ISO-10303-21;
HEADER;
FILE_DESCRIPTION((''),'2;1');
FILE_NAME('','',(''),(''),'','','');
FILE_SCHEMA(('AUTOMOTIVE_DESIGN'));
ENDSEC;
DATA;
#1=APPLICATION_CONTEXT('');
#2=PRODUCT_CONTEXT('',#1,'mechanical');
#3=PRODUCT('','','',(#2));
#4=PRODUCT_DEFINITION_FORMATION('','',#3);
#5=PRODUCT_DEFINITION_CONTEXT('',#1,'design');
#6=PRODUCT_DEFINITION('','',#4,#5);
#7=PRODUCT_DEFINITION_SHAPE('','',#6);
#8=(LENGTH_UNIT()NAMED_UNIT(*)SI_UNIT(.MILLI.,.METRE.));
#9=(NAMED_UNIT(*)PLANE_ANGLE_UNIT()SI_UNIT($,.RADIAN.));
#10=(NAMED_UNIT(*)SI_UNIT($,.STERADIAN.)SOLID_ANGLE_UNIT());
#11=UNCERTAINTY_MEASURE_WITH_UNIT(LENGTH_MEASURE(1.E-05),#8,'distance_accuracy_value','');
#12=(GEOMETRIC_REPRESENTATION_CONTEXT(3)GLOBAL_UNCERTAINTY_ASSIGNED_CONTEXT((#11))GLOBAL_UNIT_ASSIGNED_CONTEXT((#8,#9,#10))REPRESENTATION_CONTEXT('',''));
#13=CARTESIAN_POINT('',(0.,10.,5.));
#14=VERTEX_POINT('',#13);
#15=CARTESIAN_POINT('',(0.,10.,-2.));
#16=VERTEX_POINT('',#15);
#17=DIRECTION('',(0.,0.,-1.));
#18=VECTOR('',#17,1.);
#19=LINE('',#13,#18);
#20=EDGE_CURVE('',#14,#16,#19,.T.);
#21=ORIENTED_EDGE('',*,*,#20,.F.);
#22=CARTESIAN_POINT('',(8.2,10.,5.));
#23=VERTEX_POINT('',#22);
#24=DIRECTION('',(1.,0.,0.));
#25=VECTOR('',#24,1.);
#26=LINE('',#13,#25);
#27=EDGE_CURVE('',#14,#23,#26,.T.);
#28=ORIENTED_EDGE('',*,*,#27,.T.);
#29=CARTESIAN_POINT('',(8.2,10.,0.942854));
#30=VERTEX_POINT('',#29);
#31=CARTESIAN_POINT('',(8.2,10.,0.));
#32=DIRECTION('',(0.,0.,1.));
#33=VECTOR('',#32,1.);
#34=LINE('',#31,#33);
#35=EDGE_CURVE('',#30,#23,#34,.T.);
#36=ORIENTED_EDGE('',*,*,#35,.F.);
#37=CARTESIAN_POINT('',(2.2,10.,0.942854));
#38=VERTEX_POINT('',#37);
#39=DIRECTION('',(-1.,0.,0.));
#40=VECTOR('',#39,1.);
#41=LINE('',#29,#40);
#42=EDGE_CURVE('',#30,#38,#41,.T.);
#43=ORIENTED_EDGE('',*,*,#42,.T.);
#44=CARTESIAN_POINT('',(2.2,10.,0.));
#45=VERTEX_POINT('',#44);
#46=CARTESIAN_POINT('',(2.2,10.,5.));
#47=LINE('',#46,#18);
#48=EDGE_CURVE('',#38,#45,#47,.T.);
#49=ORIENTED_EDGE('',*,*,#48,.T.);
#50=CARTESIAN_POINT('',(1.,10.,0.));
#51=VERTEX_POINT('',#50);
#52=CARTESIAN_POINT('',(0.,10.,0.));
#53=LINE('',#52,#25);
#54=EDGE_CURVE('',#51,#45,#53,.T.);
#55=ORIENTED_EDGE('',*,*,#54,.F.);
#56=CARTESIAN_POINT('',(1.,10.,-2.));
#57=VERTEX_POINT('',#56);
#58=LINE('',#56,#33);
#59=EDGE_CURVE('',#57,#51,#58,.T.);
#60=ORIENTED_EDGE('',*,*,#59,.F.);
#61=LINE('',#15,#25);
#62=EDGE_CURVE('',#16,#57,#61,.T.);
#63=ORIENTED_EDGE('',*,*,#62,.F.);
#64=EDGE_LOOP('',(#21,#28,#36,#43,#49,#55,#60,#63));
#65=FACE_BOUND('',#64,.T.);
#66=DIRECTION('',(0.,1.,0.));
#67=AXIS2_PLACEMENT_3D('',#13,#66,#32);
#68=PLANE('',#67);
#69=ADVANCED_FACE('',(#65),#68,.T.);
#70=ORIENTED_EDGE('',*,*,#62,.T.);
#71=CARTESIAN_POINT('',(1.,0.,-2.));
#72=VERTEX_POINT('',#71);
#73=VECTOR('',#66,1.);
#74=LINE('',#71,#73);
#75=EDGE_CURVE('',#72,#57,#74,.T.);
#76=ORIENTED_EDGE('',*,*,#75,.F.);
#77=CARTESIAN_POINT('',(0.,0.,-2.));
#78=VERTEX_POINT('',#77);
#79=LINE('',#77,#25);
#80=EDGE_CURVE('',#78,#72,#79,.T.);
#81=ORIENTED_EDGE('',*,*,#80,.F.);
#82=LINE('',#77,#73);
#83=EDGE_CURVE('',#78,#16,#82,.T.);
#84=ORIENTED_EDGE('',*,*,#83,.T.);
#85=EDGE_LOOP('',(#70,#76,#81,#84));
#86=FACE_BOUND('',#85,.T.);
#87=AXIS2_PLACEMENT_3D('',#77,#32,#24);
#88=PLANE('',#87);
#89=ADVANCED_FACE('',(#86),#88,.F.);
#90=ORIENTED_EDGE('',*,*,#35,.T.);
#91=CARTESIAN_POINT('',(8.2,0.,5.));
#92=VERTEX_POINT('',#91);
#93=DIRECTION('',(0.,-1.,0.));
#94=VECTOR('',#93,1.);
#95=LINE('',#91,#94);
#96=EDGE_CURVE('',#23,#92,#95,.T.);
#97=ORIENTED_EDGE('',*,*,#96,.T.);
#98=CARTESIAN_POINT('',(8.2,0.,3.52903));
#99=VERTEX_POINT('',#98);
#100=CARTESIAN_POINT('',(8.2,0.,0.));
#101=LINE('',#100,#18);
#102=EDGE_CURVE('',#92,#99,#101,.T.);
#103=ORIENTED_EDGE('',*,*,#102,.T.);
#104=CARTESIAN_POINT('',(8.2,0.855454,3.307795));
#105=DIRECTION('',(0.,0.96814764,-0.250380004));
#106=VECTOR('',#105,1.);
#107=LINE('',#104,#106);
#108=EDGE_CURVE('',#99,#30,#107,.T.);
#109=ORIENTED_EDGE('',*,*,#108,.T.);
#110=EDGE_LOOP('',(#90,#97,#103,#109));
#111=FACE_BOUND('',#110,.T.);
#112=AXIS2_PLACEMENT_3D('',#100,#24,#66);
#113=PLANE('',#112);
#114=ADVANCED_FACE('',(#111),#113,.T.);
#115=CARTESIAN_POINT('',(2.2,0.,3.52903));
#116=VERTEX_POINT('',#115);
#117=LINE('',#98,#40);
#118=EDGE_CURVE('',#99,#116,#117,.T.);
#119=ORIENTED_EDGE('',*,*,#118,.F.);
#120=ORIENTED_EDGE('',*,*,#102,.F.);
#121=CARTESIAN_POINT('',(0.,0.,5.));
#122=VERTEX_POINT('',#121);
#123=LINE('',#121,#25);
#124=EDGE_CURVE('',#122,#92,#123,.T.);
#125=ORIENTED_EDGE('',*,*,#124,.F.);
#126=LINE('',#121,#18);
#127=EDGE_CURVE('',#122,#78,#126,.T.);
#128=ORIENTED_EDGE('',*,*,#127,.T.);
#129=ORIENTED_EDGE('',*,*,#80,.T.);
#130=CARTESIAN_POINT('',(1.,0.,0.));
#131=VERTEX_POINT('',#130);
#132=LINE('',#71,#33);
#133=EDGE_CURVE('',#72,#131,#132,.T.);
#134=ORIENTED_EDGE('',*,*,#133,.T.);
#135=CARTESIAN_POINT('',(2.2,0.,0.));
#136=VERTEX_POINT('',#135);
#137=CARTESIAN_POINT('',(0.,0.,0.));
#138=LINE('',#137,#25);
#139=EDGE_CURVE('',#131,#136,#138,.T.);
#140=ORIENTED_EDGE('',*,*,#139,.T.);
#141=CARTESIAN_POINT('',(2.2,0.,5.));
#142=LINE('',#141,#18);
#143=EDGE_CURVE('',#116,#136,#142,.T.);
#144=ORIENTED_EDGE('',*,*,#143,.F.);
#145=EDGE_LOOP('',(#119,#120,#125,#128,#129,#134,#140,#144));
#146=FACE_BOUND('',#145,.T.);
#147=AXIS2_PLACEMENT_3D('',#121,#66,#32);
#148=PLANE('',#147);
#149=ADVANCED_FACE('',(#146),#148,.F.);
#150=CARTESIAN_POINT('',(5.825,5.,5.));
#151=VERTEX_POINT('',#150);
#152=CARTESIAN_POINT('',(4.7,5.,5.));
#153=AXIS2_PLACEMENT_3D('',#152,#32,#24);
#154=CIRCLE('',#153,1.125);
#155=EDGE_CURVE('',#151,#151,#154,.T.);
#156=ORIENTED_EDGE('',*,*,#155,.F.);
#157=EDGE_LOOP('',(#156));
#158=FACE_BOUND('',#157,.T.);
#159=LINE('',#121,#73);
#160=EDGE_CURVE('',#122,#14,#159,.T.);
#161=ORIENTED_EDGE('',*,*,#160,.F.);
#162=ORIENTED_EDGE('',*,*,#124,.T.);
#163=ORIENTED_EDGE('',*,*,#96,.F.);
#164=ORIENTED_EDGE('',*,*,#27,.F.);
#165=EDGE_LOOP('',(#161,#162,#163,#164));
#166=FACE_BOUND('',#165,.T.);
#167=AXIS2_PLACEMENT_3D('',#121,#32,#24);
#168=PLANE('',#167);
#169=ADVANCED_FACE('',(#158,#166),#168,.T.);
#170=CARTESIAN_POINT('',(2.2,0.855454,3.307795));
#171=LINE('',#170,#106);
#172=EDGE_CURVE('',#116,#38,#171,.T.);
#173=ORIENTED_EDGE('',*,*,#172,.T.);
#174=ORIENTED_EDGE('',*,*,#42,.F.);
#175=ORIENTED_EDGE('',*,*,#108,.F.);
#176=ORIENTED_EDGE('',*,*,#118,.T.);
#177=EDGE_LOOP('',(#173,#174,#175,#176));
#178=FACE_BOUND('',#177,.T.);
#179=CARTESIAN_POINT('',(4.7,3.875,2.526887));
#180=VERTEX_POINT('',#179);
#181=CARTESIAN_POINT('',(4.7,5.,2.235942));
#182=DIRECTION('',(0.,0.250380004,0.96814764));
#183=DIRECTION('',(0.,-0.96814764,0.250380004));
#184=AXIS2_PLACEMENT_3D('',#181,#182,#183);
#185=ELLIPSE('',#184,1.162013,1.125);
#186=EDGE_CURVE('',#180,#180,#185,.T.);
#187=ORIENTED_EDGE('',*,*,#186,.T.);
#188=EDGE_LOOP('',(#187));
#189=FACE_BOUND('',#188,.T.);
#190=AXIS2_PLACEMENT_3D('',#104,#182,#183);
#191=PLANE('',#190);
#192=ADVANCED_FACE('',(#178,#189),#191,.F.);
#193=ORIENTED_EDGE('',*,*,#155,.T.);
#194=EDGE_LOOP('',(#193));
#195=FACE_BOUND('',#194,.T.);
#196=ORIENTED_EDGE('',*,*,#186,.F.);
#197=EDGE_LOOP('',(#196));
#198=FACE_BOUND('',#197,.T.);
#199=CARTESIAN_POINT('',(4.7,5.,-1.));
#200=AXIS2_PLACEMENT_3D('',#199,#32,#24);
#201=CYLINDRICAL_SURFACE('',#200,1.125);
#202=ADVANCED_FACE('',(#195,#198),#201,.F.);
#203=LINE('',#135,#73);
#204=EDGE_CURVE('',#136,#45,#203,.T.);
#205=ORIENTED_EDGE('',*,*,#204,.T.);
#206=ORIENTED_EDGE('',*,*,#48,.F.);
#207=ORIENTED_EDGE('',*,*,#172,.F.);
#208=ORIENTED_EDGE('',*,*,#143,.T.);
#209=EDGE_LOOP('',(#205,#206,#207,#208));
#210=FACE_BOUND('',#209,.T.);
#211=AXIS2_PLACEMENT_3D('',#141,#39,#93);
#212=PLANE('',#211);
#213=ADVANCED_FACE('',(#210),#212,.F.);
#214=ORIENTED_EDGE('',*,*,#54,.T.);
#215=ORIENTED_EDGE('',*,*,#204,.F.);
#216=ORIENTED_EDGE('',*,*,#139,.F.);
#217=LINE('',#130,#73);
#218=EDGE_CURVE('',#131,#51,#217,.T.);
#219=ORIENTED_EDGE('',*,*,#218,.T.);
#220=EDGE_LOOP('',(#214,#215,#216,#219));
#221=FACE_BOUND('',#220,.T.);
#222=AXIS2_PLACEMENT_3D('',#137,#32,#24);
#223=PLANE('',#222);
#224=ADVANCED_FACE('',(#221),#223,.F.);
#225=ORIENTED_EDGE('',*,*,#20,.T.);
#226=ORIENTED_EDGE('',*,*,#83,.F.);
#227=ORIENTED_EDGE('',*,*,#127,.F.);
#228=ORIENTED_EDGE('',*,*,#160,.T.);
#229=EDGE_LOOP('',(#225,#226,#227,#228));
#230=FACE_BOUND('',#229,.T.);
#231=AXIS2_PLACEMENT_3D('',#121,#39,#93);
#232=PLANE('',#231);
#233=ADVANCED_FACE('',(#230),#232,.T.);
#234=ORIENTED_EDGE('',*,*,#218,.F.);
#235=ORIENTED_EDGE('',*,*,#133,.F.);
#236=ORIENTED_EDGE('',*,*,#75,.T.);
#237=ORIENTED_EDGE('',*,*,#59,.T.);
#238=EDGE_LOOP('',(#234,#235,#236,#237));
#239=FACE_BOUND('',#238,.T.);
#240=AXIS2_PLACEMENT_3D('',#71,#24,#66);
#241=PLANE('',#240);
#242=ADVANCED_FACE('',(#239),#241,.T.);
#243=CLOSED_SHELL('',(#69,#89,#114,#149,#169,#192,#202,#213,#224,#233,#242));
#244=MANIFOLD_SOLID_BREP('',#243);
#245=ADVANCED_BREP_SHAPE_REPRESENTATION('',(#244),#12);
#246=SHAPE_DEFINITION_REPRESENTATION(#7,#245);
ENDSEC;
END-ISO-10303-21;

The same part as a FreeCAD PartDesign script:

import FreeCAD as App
import Part
import Sketcher
Q = App.Units.Quantity


def add_polygon(sketch, points):
    """Adds a closed chain of lines whose ends are joined by coincident constraints."""
    first, n = sketch.GeometryCount, len(points)
    for a, b in zip(points, points[1:] + points[:1]):
        sketch.addGeometry(Part.LineSegment(App.Vector(*a, 0), App.Vector(*b, 0)), False)
    for i in range(n):
        sketch.addConstraint(Sketcher.Constraint("Coincident", first + i, 2, first + (i + 1) % n, 1))

doc = App.newDocument("Part")
body = doc.addObject("PartDesign::Body", "Body")

# Sketch on XY plane
sketch1 = body.newObject("Sketcher::SketchObject", "Sketch")
sketch1.AttachmentSupport = (doc.getObject("XY_Plane"), [""])
sketch1.MapMode = "FlatFace"
add_polygon(sketch1, [(2.2, 0), (2.2, 10), (0, 10), (0, 0)])  # lines 0-3
sketch1.addConstraint(Sketcher.Constraint("Vertical", 0))
sketch1.addConstraint(Sketcher.Constraint("Horizontal", 1))
sketch1.addConstraint(Sketcher.Constraint("Vertical", 2))
sketch1.addConstraint(Sketcher.Constraint("Horizontal", 3))
sketch1.addConstraint(Sketcher.Constraint("Coincident", 2, 2, -1, 1))
sketch1.addConstraint(Sketcher.Constraint("DistanceY", 0, 1, 0, 2, 10.0))
sketch1.addConstraint(Sketcher.Constraint("DistanceX", 1, 2, 1, 1, 2.2))
pad1 = body.newObject("PartDesign::Pad", "Pad")
pad1.Profile = sketch1
pad1.Length = 5

# Sketch on XY plane
sketch2 = body.newObject("Sketcher::SketchObject", "Sketch001")
sketch2.AttachmentSupport = (doc.getObject("XY_Plane"), [""])
sketch2.MapMode = "FlatFace"
add_polygon(sketch2, [(0, 10), (0, 0), (1, 0), (1, 10)])  # lines 0-3
sketch2.addConstraint(Sketcher.Constraint("Vertical", 0))
sketch2.addConstraint(Sketcher.Constraint("Horizontal", 1))
sketch2.addConstraint(Sketcher.Constraint("Vertical", 2))
sketch2.addConstraint(Sketcher.Constraint("Horizontal", 3))
sketch2.addConstraint(Sketcher.Constraint("Coincident", 0, 2, -1, 1))
sketch2.addConstraint(Sketcher.Constraint("DistanceX", 1, 1, 1, 2, 1.0))
sketch2.addConstraint(Sketcher.Constraint("DistanceY", 0, 2, 0, 1, 10.0))
pad2 = body.newObject("PartDesign::Pad", "Pad001")
pad2.Profile = sketch2
pad2.Length = 2
pad2.Reversed = True

# Sketch on YZ plane
sketch3 = body.newObject("Sketcher::SketchObject", "Sketch002")
sketch3.AttachmentSupport = (doc.getObject("YZ_Plane"), [""])
sketch3.MapMode = "FlatFace"
sketch3.AttachmentOffset = App.Placement(App.Vector(0, 0, 2.2), App.Rotation())
add_polygon(sketch3, [(0, 5), (0, 3.5), (10, 0.9), (10, 5)])  # lines 0-3
sketch3.addConstraint(Sketcher.Constraint("Vertical", 0))
sketch3.addConstraint(Sketcher.Constraint("Vertical", 2))
sketch3.addConstraint(Sketcher.Constraint("Horizontal", 3))
sketch3.addConstraint(Sketcher.Constraint("PointOnObject", 0, 2, -2))
sketch3.addConstraint(Sketcher.Constraint("DistanceX", 3, 2, 3, 1, 10.0))
sketch3.addConstraint(Sketcher.Constraint("DistanceY", -1, 1, 2, 2, 5.0))
sketch3.addConstraint(Sketcher.Constraint("Angle", 1, Q("-14.5 deg")))
sketch3.addConstraint(Sketcher.Constraint("DistanceY", 0, 2, 0, 1, 1.47097))
pad3 = body.newObject("PartDesign::Pad", "Pad002")
pad3.Profile = sketch3
pad3.Length = 6

# Sketch on XY plane
sketch4 = body.newObject("Sketcher::SketchObject", "Sketch003")
sketch4.AttachmentSupport = (doc.getObject("XY_Plane"), [""])
sketch4.MapMode = "FlatFace"
sketch4.AttachmentOffset = App.Placement(App.Vector(0, 0, 5), App.Rotation())
sketch4.addGeometry(Part.Circle(App.Vector(4.7, 5, 0), App.Vector(0, 0, 1), 1.1), False)
sketch4.addConstraint(Sketcher.Constraint("Diameter", 0, 2.25))
sketch4.addConstraint(Sketcher.Constraint("DistanceY", -1, 1, 0, 3, 5.0))
sketch4.addConstraint(Sketcher.Constraint("DistanceX", -1, 1, 0, 3, 4.7))
pocket1 = body.newObject("PartDesign::Pocket", "Pocket")
pocket1.Profile = sketch4
pocket1.Length = 6

doc.recompute()
